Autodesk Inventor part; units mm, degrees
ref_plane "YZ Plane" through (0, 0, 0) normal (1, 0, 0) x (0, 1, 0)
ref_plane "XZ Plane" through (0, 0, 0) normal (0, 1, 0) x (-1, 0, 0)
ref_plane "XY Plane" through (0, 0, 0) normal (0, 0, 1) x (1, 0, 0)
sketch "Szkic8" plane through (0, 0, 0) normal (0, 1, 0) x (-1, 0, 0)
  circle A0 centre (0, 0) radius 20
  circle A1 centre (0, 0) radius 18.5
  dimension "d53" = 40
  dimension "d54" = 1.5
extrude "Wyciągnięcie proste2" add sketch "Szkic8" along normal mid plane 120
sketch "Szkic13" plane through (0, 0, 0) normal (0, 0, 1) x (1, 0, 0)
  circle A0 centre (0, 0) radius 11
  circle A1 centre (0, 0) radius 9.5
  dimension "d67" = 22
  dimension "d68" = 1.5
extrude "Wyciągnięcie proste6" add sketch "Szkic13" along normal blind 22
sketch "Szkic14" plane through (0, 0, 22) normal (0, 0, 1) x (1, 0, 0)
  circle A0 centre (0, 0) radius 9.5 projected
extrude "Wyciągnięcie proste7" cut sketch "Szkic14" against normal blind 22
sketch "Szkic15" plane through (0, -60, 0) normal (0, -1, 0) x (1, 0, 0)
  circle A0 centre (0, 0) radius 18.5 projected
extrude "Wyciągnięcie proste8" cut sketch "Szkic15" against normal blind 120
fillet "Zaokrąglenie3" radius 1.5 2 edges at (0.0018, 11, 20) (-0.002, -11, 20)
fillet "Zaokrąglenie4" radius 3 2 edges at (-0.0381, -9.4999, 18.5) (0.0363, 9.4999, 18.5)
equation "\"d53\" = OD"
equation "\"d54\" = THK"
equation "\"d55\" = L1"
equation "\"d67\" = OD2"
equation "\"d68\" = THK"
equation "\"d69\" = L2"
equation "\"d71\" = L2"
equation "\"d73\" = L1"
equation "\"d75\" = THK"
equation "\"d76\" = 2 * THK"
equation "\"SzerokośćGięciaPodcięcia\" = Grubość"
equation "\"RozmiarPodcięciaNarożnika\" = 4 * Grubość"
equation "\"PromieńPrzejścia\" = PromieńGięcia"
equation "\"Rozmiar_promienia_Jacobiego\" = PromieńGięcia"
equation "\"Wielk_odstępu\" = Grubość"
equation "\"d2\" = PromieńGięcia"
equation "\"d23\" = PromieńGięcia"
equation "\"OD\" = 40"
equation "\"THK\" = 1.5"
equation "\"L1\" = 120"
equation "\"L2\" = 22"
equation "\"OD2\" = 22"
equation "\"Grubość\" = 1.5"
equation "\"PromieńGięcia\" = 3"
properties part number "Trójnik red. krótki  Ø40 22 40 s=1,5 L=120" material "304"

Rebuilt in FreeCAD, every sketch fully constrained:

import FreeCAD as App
import Part
import Sketcher
from FreeCAD import Vector


def edges_at(feature, points):
    """Names of the edges that pass closest to the given points."""
    edges = feature.Shape.Edges
    near = lambda p: min(range(len(edges)), key=lambda i: edges[i].distToShape(Part.Vertex(*p))[0])
    return sorted({f"Edge{near(p) + 1}" for p in points})

doc = App.newDocument("Part")
body = doc.addObject("PartDesign::Body", "Body")

sketch1 = body.newObject("Sketcher::SketchObject", "Sketch")
sketch1.AttachmentSupport = (doc.getObject("XZ_Plane"), [""])
sketch1.MapMode = "FlatFace"
sketch1.addGeometry([
    Part.Circle(Vector(0, 0, 0), Vector(0, 0, 1), 20),
    Part.Circle(Vector(0, 0, 0), Vector(0, 0, 1), 18.5),
], False)
sketch1.addConstraint([
    Sketcher.Constraint("Coincident", 0, 3, -1, 1),
    Sketcher.Constraint("Coincident", 1, 3, -1, 1),
    Sketcher.Constraint("Diameter", 0, 40.0),
    Sketcher.Constraint("Diameter", 1, 37.0),
])
pad1 = body.newObject("PartDesign::Pad", "Pad")
pad1.Profile = sketch1
pad1.Length = 120
pad1.Midplane = True

sketch2 = body.newObject("Sketcher::SketchObject", "Sketch001")
sketch2.AttachmentSupport = (doc.getObject("XY_Plane"), [""])
sketch2.MapMode = "FlatFace"
sketch2.addGeometry([
    Part.Circle(Vector(0, 0, 0), Vector(0, 0, 1), 11),
    Part.Circle(Vector(0, 0, 0), Vector(0, 0, 1), 9.5),
], False)
sketch2.addConstraint([
    Sketcher.Constraint("Coincident", 0, 3, -1, 1),
    Sketcher.Constraint("Coincident", 1, 3, -1, 1),
    Sketcher.Constraint("Diameter", 0, 22.0),
    Sketcher.Constraint("Diameter", 1, 19.0),
])
pad2 = body.newObject("PartDesign::Pad", "Pad001")
pad2.Profile = sketch2
pad2.Length = 22

sketch3 = body.newObject("Sketcher::SketchObject", "Sketch002")
sketch3.AttachmentSupport = (doc.getObject("XY_Plane"), [""])
sketch3.MapMode = "FlatFace"
sketch3.AttachmentOffset = App.Placement(Vector(0, 0, 22), App.Rotation())
sketch3.addGeometry(Part.Circle(Vector(0, 0, 0), Vector(0, 0, 1), 9.5), False)
sketch3.addConstraint([
    Sketcher.Constraint("Coincident", 0, 3, -1, 1),
    Sketcher.Constraint("Diameter", 0, 19.0),
])
pocket1 = body.newObject("PartDesign::Pocket", "Pocket")
pocket1.Profile = sketch3
pocket1.Length = 22

sketch4 = body.newObject("Sketcher::SketchObject", "Sketch003")
sketch4.AttachmentSupport = (doc.getObject("XZ_Plane"), [""])
sketch4.MapMode = "FlatFace"
sketch4.AttachmentOffset = App.Placement(Vector(0, 0, 60), App.Rotation())
sketch4.addGeometry(Part.Circle(Vector(0, 0, 0), Vector(0, 0, 1), 18.5), False)
sketch4.addConstraint([
    Sketcher.Constraint("Coincident", 0, 3, -1, 1),
    Sketcher.Constraint("Diameter", 0, 37.0),
])
pocket2 = body.newObject("PartDesign::Pocket", "Pocket001")
pocket2.Profile = sketch4
pocket2.Length = 120
doc.recompute()

fillet = body.newObject("PartDesign::Fillet", "Fillet")
fillet.Base = (pocket2, edges_at(pocket2, [(0.002, 11, 20), (-0.002, -11, 20)]))
fillet.Radius = 1.5
doc.recompute()

fillet2 = body.newObject("PartDesign::Fillet", "Fillet001")
fillet2.Base = (fillet, edges_at(fillet, [(-0.038, -9.5, 18.5), (0.036, 9.5, 18.5)]))
fillet2.Radius = 3

doc.recompute()
